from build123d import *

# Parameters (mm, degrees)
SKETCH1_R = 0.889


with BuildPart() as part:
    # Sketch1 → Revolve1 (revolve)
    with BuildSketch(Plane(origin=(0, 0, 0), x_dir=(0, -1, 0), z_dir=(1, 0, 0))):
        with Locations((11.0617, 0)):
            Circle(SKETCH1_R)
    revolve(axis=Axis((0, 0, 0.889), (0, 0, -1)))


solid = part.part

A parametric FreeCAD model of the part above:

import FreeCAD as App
import Part
import Sketcher

V = App.Vector
Q = App.Units.Quantity

doc = App.newDocument("Part")
body = doc.addObject("PartDesign::Body", "Body")

# Sketch on YZ plane
sketch1 = body.newObject("Sketcher::SketchObject", "Sketch")
sketch1.AttachmentSupport = (doc.getObject("YZ_Plane"), [""])
sketch1.MapMode = "FlatFace"
sketch1.addGeometry(Part.Circle(V(-11.1, 0, 0), V(0, 0, 1), 0.9), False)
sketch1.addConstraint([
    Sketcher.Constraint("PointOnObject", 0, 3, -1),
    Sketcher.Constraint("Diameter", 0, Q("0.07 in")),
    Sketcher.Constraint("DistanceX", 0, 3, -1, 1, Q("0.4355 in")),
])
revolution = body.newObject("PartDesign::Revolution", "Revolution")
revolution.Profile = sketch1
revolution.ReferenceAxis = (sketch1, ["V_Axis"])
revolution.Angle = 360

doc.recompute()
